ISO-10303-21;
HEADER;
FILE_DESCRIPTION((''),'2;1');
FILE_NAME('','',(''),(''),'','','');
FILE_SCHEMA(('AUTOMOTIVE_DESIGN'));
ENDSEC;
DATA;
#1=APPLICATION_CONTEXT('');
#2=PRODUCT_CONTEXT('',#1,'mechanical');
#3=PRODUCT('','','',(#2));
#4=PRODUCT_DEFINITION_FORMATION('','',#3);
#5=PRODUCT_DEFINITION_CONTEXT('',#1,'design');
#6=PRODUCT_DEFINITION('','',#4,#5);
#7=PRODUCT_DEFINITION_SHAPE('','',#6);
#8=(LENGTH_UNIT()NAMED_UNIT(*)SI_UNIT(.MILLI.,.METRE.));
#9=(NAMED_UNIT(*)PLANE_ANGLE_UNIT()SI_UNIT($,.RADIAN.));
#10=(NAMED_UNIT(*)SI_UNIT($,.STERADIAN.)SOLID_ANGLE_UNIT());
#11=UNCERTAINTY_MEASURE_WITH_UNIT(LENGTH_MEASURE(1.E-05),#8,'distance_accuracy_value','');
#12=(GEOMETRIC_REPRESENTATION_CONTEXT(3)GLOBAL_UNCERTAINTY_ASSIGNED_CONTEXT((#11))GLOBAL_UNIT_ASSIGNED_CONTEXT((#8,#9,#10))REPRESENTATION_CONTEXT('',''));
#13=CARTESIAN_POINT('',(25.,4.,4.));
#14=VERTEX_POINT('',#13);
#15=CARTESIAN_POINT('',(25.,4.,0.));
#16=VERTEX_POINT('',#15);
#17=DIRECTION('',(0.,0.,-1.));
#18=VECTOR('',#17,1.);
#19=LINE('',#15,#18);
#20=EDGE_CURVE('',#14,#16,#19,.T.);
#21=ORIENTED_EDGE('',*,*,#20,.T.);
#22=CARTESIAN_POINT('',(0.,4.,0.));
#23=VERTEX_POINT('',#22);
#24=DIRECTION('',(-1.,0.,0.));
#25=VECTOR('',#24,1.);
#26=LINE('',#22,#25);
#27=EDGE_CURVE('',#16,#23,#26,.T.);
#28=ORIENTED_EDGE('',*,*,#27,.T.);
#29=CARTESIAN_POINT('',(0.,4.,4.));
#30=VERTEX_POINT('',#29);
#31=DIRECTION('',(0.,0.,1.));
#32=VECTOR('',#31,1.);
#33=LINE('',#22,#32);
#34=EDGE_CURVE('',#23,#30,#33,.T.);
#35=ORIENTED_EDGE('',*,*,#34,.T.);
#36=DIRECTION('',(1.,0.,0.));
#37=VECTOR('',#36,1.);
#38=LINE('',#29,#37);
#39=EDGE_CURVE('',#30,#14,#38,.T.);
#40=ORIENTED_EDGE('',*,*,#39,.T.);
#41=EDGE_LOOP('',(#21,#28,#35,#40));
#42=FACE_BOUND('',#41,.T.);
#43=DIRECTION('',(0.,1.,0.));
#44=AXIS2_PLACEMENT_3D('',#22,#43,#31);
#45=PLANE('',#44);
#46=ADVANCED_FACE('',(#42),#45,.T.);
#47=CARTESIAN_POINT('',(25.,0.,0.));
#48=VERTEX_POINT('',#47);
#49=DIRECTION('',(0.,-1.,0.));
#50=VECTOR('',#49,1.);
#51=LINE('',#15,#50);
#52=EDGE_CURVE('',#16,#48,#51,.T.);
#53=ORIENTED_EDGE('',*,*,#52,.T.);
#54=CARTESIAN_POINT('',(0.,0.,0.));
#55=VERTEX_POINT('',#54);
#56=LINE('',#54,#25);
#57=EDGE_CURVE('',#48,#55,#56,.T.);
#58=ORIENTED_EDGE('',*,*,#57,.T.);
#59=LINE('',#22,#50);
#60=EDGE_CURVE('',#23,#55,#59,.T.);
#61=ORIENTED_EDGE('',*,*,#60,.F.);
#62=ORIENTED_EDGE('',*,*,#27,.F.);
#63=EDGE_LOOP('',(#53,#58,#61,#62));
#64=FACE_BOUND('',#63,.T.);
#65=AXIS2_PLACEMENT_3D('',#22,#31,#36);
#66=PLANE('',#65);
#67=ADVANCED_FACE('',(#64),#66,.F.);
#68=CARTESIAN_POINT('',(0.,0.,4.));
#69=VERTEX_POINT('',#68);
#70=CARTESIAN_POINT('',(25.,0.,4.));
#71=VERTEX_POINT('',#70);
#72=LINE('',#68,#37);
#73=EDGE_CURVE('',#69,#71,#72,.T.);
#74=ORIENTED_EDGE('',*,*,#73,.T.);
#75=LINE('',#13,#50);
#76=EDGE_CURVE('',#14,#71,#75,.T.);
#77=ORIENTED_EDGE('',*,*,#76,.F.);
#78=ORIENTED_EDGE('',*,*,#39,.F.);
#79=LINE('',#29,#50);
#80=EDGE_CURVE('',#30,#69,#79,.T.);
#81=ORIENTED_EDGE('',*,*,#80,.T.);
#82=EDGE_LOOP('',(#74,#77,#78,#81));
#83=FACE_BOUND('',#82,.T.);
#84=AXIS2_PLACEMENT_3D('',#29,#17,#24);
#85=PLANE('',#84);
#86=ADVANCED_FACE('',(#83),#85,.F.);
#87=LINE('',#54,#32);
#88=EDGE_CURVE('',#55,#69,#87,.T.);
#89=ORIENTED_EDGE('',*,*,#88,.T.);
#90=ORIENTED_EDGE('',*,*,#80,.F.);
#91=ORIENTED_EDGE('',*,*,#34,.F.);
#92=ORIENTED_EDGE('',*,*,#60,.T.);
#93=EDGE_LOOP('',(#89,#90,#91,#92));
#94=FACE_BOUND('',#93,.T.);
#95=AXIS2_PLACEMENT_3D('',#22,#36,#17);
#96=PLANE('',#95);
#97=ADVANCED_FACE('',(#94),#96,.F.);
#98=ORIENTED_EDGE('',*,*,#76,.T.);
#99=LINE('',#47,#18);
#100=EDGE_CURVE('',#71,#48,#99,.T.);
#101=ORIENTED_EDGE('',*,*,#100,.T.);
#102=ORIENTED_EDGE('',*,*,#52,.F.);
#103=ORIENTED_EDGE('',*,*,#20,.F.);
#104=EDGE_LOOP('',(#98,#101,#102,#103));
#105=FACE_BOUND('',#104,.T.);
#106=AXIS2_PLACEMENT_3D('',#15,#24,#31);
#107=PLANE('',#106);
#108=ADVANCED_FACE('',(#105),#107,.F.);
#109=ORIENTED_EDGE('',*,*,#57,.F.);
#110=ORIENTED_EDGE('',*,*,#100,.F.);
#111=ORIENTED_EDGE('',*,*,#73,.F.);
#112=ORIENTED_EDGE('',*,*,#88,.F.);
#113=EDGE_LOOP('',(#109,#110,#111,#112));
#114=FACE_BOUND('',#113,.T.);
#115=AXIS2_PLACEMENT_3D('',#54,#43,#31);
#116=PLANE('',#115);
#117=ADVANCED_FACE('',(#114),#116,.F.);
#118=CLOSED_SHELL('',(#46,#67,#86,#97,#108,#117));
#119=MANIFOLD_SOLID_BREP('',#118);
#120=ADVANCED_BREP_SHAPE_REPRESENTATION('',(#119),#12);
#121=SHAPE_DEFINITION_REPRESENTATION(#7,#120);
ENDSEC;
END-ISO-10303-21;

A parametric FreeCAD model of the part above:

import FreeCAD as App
import Part
import Sketcher
from FreeCAD import Vector
Q = App.Units.Quantity


def add_polygon(sketch, points):
    """Adds a closed chain of lines whose ends are joined by coincident constraints."""
    first, n = sketch.GeometryCount, len(points)
    for a, b in zip(points, points[1:] + points[:1]):
        sketch.addGeometry(Part.LineSegment(App.Vector(*a, 0), App.Vector(*b, 0)), False)
    for i in range(n):
        sketch.addConstraint(Sketcher.Constraint("Coincident", first + i, 2, first + (i + 1) % n, 1))

doc = App.newDocument("Part")
body = doc.addObject("PartDesign::Body", "Body")

sketch1 = body.newObject("Sketcher::SketchObject", "Sketch")
sketch1.AttachmentSupport = (doc.getObject("XZ_Plane"), [""])
sketch1.MapMode = "FlatFace"
add_polygon(sketch1, [(0, 0), (0, 4), (25, 4), (25, 0)])
sketch1.addConstraint([
    Sketcher.Constraint("Vertical", 0),
    Sketcher.Constraint("Horizontal", 1),
    Sketcher.Constraint("Vertical", 2),
    Sketcher.Constraint("Horizontal", 3),
    Sketcher.Constraint("Coincident", 3, 2, -1, 1),
    Sketcher.Constraint("DistanceX", 1, 1, 1, 2, Q("25 mm")),
    Sketcher.Constraint("DistanceY", 0, 1, 0, 2, Q("4 mm")),
])
pad1 = body.newObject("PartDesign::Pad", "Pad")
pad1.Profile = sketch1
pad1.Length = 4
pad1.Reversed = True

doc.recompute()
